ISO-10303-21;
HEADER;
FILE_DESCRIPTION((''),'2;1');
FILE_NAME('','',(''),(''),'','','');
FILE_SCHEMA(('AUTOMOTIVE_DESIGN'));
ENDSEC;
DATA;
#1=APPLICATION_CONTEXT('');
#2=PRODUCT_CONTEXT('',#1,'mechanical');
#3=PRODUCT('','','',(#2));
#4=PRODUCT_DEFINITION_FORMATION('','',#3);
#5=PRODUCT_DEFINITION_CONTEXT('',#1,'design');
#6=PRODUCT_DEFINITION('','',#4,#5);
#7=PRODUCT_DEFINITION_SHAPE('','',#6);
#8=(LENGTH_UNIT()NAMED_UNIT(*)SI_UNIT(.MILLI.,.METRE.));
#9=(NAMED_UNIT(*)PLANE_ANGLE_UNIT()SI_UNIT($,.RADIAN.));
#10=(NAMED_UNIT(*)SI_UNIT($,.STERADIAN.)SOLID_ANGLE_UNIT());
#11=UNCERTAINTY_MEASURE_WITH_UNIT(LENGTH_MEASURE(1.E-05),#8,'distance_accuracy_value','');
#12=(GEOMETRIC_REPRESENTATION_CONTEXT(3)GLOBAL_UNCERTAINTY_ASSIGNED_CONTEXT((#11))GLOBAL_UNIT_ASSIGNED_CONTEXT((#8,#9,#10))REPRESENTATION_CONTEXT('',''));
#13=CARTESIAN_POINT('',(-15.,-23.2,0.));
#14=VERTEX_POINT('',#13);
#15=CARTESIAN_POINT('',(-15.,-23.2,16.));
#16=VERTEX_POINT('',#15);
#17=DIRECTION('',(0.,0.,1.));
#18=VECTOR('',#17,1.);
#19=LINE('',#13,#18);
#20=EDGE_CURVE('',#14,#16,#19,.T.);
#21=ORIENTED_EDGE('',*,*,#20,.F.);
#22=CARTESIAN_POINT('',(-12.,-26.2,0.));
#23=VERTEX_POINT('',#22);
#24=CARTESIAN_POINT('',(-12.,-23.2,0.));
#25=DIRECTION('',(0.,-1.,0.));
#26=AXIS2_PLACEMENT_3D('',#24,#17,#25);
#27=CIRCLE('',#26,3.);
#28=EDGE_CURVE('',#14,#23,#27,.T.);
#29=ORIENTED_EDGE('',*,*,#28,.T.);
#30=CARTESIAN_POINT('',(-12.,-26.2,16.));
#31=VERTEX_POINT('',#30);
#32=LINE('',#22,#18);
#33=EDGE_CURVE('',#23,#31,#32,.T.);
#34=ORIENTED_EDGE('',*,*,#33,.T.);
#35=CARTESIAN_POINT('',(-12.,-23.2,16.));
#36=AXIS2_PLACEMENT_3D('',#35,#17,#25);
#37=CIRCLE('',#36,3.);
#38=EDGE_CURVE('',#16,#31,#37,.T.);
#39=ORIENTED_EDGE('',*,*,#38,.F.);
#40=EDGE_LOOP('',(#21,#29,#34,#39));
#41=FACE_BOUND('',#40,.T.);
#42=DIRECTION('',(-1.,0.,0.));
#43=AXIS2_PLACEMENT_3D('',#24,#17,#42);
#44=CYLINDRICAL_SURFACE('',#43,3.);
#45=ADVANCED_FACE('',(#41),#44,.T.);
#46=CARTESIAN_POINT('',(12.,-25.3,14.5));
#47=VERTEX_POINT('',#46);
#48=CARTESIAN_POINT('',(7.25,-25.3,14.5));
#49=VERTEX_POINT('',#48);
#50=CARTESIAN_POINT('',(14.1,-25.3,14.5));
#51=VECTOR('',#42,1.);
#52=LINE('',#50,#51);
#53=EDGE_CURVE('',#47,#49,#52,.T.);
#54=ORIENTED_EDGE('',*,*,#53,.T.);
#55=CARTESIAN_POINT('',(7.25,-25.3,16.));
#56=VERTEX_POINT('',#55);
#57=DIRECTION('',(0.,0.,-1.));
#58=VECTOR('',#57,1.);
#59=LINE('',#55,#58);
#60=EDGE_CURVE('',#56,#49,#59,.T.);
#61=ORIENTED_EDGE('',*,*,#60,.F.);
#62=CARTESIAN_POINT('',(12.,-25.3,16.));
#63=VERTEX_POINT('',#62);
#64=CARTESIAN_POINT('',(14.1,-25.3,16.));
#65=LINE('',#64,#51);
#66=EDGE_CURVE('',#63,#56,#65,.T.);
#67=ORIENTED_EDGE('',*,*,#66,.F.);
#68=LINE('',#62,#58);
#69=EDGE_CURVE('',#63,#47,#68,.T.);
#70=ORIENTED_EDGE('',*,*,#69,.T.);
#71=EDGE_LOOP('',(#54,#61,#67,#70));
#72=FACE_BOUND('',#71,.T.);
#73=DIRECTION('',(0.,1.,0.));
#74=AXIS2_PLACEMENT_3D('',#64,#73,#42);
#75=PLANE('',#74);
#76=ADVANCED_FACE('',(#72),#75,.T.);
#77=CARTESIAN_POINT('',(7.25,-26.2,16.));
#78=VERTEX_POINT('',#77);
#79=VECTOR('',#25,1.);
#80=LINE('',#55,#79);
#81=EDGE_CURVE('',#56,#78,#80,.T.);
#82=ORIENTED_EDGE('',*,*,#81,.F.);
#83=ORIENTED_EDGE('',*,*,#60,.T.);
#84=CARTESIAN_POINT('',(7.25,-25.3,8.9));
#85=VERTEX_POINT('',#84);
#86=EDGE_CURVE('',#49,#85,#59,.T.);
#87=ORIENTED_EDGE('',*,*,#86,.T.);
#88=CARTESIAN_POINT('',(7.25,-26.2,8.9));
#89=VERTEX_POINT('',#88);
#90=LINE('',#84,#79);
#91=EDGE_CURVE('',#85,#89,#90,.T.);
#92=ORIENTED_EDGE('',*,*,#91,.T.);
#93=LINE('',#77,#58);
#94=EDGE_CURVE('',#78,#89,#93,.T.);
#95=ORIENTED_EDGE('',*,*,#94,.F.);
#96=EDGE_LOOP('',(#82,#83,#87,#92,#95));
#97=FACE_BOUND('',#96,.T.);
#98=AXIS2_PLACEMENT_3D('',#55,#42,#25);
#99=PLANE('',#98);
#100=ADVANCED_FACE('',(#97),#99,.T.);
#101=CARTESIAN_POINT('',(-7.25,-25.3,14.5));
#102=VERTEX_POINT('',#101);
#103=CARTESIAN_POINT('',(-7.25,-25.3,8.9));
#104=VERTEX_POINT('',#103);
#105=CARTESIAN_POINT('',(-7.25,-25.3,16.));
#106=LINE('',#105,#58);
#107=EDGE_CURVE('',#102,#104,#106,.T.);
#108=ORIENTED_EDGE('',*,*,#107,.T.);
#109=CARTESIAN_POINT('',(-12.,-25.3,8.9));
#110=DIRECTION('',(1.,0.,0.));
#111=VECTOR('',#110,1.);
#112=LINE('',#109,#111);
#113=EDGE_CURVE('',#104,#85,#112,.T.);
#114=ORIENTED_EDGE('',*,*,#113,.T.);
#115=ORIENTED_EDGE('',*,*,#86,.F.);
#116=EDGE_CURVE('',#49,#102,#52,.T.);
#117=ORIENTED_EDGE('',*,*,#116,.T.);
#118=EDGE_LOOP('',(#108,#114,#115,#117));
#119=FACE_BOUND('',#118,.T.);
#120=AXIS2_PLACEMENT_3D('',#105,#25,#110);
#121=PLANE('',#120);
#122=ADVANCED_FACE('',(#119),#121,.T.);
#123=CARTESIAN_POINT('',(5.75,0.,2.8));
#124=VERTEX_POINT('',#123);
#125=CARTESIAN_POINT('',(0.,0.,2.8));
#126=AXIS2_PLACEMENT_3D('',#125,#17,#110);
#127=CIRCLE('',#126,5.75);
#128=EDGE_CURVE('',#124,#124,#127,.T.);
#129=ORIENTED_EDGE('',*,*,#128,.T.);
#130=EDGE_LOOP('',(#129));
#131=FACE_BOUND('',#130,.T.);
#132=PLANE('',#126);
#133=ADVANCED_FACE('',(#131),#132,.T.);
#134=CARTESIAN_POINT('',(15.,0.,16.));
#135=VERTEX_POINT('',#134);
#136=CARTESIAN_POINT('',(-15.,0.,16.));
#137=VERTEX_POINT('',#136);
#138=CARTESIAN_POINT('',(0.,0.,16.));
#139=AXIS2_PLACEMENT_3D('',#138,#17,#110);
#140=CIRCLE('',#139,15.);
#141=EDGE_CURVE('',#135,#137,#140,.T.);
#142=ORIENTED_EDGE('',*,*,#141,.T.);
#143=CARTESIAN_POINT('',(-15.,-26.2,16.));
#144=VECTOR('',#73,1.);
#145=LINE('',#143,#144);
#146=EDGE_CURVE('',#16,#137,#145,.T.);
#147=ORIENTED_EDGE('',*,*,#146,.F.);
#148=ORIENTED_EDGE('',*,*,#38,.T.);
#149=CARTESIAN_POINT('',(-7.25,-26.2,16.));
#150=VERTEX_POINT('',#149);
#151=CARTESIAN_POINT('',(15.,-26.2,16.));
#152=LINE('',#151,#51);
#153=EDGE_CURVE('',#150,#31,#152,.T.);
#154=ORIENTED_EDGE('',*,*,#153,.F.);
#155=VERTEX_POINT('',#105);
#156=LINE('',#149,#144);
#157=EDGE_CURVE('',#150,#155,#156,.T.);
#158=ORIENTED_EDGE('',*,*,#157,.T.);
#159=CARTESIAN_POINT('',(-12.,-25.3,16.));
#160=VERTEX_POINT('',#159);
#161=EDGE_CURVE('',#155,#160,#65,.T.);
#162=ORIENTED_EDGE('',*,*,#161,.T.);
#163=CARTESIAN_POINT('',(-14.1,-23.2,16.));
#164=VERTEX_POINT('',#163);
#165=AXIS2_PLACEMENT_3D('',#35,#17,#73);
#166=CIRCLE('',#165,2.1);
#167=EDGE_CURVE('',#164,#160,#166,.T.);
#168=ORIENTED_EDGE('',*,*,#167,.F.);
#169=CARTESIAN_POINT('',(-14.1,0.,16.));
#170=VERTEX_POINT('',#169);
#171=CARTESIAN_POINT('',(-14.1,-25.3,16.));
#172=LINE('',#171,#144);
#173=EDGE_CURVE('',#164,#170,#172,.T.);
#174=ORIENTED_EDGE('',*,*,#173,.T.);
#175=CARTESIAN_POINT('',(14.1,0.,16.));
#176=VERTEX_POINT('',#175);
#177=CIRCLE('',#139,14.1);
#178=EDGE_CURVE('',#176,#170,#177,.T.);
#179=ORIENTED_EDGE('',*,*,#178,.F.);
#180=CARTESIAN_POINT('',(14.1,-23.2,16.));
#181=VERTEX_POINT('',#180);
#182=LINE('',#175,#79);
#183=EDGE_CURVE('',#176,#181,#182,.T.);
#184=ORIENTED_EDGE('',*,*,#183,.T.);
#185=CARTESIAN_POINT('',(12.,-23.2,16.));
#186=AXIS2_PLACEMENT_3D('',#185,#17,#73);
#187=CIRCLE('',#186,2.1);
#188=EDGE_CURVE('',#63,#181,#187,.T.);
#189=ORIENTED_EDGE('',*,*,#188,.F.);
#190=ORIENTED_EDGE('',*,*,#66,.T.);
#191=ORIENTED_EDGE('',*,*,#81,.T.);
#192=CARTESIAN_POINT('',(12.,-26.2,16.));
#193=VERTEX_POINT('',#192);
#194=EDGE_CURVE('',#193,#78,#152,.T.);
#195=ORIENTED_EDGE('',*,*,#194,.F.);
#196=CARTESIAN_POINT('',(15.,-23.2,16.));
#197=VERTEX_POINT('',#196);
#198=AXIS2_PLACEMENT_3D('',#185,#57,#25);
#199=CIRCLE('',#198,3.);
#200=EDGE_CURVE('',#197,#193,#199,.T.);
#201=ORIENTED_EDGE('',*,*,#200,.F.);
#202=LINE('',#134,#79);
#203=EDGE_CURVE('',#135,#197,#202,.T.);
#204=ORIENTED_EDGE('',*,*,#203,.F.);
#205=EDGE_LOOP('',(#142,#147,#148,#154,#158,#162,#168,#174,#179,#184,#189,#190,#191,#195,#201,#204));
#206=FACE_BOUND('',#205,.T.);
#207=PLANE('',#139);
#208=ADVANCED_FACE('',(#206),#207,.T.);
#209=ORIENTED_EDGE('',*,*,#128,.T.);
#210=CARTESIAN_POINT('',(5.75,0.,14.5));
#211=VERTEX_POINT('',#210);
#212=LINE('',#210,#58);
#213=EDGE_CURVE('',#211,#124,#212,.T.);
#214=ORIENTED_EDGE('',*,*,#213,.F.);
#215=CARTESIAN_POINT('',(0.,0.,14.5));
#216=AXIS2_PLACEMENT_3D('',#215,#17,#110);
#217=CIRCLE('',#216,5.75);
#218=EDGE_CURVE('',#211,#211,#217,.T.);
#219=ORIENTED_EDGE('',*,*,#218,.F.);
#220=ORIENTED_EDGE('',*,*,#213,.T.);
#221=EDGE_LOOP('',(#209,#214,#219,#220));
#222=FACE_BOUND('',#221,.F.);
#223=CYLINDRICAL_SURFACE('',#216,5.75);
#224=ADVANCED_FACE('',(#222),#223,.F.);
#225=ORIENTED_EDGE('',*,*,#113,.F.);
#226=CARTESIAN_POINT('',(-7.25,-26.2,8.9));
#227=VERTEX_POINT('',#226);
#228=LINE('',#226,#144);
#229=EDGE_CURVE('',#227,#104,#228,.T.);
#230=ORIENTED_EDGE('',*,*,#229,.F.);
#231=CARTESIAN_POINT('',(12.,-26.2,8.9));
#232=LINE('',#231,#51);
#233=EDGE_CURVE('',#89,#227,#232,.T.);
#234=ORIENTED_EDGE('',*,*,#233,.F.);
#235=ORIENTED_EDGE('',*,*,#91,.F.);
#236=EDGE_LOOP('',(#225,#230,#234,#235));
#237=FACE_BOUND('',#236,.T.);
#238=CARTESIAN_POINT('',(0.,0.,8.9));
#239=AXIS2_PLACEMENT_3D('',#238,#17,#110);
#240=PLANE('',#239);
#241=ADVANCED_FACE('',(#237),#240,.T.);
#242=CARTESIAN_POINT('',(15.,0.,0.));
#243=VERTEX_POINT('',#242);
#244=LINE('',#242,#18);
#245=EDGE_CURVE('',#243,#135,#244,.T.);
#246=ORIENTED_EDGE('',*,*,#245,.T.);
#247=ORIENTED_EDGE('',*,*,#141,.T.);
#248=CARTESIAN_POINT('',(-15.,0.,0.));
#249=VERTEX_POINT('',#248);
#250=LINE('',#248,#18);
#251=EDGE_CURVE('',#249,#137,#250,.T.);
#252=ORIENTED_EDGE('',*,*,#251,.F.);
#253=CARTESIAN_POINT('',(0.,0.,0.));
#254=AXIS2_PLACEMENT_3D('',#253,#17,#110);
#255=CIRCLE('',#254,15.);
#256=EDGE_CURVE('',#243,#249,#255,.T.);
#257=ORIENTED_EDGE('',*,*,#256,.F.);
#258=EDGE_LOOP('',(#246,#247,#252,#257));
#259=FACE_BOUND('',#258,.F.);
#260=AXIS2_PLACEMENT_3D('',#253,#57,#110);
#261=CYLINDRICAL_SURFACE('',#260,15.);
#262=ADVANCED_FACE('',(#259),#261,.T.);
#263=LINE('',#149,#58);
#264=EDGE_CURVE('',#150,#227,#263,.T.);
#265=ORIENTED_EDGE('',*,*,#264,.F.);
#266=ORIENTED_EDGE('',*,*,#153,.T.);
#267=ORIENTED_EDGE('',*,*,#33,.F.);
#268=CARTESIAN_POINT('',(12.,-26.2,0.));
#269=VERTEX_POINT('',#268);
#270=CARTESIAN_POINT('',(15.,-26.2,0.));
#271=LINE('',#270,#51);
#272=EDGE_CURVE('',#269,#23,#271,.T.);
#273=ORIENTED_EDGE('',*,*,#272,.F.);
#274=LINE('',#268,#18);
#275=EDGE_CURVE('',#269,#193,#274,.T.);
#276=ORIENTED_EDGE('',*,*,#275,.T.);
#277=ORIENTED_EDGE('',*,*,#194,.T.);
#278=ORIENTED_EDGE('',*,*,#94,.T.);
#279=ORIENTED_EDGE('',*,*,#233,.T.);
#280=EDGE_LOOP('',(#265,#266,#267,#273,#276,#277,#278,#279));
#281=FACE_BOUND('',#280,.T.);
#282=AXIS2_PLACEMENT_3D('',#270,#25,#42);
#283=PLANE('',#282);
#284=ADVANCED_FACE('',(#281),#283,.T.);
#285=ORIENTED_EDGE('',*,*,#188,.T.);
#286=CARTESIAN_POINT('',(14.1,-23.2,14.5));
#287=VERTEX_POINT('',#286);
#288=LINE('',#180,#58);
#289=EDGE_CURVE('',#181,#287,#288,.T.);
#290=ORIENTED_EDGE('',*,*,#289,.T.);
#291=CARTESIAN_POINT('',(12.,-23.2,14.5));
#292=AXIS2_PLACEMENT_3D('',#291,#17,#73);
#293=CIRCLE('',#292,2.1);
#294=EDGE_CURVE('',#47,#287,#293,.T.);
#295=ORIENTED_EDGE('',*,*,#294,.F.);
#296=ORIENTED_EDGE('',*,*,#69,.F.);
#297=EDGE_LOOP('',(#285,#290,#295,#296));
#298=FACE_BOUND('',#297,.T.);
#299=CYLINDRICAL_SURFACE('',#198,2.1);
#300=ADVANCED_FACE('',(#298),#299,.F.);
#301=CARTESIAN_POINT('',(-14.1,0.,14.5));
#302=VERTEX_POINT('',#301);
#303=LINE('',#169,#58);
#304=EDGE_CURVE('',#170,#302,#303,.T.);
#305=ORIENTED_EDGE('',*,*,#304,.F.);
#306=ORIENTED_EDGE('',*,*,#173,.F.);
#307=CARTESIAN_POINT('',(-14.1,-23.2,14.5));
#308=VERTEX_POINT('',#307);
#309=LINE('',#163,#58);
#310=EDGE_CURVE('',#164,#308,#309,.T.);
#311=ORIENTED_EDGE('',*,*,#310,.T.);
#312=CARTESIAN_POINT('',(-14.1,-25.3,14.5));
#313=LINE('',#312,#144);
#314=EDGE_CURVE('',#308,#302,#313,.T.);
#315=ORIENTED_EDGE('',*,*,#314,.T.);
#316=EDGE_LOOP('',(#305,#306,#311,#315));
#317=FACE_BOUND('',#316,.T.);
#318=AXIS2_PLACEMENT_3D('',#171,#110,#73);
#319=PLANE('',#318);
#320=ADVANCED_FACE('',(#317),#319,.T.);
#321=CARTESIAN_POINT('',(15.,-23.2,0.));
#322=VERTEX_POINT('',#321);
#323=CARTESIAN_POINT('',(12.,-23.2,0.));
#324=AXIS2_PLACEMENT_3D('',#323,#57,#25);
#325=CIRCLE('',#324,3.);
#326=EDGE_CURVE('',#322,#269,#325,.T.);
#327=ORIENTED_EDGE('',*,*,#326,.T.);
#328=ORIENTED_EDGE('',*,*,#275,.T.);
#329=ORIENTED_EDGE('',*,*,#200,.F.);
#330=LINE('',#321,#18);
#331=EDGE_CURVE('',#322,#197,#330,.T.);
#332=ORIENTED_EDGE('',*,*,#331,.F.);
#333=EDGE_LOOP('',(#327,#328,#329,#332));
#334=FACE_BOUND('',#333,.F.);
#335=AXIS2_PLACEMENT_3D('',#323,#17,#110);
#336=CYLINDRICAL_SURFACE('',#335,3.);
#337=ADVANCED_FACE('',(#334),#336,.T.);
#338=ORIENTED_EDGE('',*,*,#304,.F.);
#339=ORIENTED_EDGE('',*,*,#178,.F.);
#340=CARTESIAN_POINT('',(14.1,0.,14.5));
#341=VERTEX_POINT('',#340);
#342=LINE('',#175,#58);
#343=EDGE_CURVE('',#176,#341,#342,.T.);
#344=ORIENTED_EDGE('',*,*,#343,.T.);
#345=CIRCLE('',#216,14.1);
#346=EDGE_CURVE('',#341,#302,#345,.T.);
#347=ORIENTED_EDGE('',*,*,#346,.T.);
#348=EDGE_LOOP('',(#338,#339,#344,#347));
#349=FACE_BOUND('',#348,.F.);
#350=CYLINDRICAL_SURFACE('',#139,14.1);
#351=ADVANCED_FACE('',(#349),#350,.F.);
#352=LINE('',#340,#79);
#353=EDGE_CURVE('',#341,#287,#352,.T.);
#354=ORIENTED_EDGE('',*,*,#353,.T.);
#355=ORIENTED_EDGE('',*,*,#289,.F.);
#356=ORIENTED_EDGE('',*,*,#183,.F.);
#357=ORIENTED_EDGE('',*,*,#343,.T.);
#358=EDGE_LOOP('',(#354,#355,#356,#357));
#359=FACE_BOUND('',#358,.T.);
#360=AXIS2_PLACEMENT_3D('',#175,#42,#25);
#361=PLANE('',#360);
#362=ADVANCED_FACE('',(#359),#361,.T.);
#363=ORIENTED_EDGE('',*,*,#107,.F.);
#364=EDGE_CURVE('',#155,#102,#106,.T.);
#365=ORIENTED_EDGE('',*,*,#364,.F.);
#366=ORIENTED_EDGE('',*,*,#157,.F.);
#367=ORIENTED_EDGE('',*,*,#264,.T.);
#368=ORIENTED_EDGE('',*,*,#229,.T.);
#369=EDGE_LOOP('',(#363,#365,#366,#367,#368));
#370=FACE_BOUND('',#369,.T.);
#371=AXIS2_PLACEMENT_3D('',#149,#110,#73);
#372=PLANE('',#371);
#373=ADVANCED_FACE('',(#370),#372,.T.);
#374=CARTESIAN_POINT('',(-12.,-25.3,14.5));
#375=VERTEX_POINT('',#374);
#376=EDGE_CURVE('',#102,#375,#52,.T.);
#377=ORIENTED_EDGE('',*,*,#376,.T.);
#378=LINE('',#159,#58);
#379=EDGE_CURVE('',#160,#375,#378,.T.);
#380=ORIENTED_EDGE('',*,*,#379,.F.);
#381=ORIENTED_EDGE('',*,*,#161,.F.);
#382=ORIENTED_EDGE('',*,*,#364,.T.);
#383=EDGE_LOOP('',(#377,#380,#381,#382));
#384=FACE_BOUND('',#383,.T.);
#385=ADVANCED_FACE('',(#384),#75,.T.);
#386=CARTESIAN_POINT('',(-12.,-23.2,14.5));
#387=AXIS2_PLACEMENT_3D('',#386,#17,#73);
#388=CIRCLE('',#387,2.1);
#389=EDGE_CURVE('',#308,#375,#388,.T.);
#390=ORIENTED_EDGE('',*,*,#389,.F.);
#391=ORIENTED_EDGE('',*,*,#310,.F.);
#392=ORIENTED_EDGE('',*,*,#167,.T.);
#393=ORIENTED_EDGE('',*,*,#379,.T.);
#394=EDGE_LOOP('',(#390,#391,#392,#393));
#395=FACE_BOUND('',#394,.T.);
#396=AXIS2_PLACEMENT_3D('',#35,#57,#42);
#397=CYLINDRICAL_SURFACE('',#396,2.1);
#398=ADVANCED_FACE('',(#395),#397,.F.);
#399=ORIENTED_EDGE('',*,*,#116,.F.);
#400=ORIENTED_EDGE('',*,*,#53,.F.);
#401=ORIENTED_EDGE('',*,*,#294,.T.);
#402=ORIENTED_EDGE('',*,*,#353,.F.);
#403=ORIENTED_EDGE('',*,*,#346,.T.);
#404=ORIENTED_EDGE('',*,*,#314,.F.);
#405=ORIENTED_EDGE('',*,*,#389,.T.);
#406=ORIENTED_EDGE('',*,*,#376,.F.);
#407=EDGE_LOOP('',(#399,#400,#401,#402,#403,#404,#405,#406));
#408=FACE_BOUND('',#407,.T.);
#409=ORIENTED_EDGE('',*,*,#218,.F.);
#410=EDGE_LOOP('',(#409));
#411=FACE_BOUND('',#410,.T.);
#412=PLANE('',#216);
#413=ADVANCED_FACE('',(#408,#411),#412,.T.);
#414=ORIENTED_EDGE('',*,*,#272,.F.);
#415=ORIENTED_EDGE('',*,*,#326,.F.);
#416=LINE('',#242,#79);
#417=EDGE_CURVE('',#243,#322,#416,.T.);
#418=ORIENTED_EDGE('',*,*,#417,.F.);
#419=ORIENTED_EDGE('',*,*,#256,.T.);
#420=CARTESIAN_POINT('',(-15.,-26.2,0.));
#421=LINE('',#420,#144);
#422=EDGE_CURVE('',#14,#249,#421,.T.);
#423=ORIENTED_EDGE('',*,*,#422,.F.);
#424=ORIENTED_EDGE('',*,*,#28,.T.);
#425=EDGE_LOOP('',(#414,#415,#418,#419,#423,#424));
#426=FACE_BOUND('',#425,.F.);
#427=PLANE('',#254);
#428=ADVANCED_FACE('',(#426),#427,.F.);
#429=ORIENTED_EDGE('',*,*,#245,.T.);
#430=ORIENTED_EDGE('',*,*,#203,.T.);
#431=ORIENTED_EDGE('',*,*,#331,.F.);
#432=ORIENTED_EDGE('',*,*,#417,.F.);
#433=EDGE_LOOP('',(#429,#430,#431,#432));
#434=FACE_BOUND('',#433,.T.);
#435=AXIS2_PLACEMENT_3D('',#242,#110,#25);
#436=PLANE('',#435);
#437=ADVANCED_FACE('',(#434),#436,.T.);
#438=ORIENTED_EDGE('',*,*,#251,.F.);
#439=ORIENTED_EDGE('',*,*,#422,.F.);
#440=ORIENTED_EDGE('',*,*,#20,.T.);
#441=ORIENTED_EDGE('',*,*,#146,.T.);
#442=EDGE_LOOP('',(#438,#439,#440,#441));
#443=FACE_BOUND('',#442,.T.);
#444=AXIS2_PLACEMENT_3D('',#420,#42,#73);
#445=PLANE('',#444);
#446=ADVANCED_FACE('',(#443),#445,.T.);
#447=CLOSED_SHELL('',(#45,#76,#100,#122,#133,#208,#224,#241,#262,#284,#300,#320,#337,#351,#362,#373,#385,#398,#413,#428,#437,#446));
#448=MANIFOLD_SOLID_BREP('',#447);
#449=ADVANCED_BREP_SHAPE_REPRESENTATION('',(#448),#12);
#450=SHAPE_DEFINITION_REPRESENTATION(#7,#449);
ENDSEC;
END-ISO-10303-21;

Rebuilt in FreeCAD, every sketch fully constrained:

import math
import FreeCAD as App
import Part
import Sketcher

V = App.Vector


def edges_at(feature, points):
    """Names of the edges that pass closest to the given points."""
    edges = feature.Shape.Edges
    near = lambda p: min(range(len(edges)), key=lambda i: edges[i].distToShape(Part.Vertex(*p))[0])
    return sorted({f"Edge{near(p) + 1}" for p in points})

doc = App.newDocument("Part")
body = doc.addObject("PartDesign::Body", "Body")

# Sketch on XY plane
sketch1 = body.newObject("Sketcher::SketchObject", "Sketch")
sketch1.AttachmentSupport = (doc.getObject("XY_Plane"), [""])
sketch1.MapMode = "FlatFace"
sketch1.addGeometry(Part.ArcOfCircle(Part.Circle(V(0, 0, 0), V(0, 0, 1), 15), math.radians(0), math.radians(180)), False)
sketch1.addGeometry(Part.LineSegment(V(-15, 0, 0), V(-15, -26, 0)), False)
sketch1.addGeometry(Part.LineSegment(V(-15, -26, 0), V(15, -26, 0)), False)
sketch1.addGeometry(Part.LineSegment(V(15, -26, 0), V(15, 0, 0)), False)
sketch1.addConstraint(Sketcher.Constraint("Tangent", 0, 2, 1, 1))
sketch1.addConstraint(Sketcher.Constraint("Coincident", 1, 2, 2, 1))
sketch1.addConstraint(Sketcher.Constraint("Coincident", 2, 2, 3, 1))
sketch1.addConstraint(Sketcher.Constraint("Tangent", 3, 2, 0, 1))
sketch1.addConstraint(Sketcher.Constraint("Vertical", 1))
sketch1.addConstraint(Sketcher.Constraint("Horizontal", 2))
sketch1.addConstraint(Sketcher.Constraint("Vertical", 3))
sketch1.addConstraint(Sketcher.Constraint("Coincident", 0, 3, -1, 1))
sketch1.addConstraint(Sketcher.Constraint("Radius", 0, 15.0))
sketch1.addConstraint(Sketcher.Constraint("DistanceY", 1, 2, 1, 1, 26.2))
pad1 = body.newObject("PartDesign::Pad", "Pad")
pad1.Profile = sketch1
pad1.Length = 16

# Sketch on XY plane
sketch2 = body.newObject("Sketcher::SketchObject", "Sketch001")
sketch2.AttachmentSupport = (doc.getObject("XY_Plane"), [""])
sketch2.MapMode = "FlatFace"
sketch2.AttachmentOffset = App.Placement(V(0, 0, 16), App.Rotation())
sketch2.addGeometry(Part.ArcOfCircle(Part.Circle(V(0, 0, 0), V(0, 0, 1), 14), math.radians(0), math.radians(180)), False)
sketch2.addGeometry(Part.LineSegment(V(-14, 0, 0), V(-14, -25, 0)), False)
sketch2.addGeometry(Part.LineSegment(V(-14, -25, 0), V(14, -25, 0)), False)
sketch2.addGeometry(Part.LineSegment(V(14, -25, 0), V(14, 0, 0)), False)
sketch2.addConstraint(Sketcher.Constraint("Tangent", 0, 2, 1, 1))
sketch2.addConstraint(Sketcher.Constraint("Coincident", 1, 2, 2, 1))
sketch2.addConstraint(Sketcher.Constraint("Coincident", 2, 2, 3, 1))
sketch2.addConstraint(Sketcher.Constraint("Tangent", 3, 2, 0, 1))
sketch2.addConstraint(Sketcher.Constraint("Vertical", 1))
sketch2.addConstraint(Sketcher.Constraint("Horizontal", 2))
sketch2.addConstraint(Sketcher.Constraint("Vertical", 3))
sketch2.addConstraint(Sketcher.Constraint("Coincident", 0, 3, -1, 1))
sketch2.addConstraint(Sketcher.Constraint("Radius", 0, 14.1))
sketch2.addConstraint(Sketcher.Constraint("DistanceY", 1, 2, 1, 1, 25.3))
pocket1 = body.newObject("PartDesign::Pocket", "Pocket")
pocket1.Profile = sketch2
pocket1.Length = 1.5

# Sketch on XY plane
sketch3 = body.newObject("Sketcher::SketchObject", "Sketch002")
sketch3.AttachmentSupport = (doc.getObject("XY_Plane"), [""])
sketch3.MapMode = "FlatFace"
sketch3.AttachmentOffset = App.Placement(V(0, 0, 14.5), App.Rotation())
sketch3.addGeometry(Part.Circle(V(0, 0, 0), V(0, 0, 1), 6), False)
sketch3.addConstraint(Sketcher.Constraint("Coincident", 0, 3, -1, 1))
sketch3.addConstraint(Sketcher.Constraint("Diameter", 0, 11.5))
pocket2 = body.newObject("PartDesign::Pocket", "Pocket001")
pocket2.Profile = sketch3
pocket2.Length = 11.7
doc.recompute()

fillet = body.newObject("PartDesign::Fillet", "Fillet")
fillet.Base = (pocket2, edges_at(pocket2, [(15, -26.2, 8), (-15, -26.2, 8)]))
fillet.Radius = 3
doc.recompute()

fillet2 = body.newObject("PartDesign::Fillet", "Fillet001")
fillet2.Base = (fillet, edges_at(fillet, [(-14.1, -25.3, 15.25), (14.1, -25.3, 15.25)]))
fillet2.Radius = 2.1

# Sketch on XY plane
sketch4 = body.newObject("Sketcher::SketchObject", "Sketch003")
sketch4.AttachmentSupport = (doc.getObject("XY_Plane"), [""])
sketch4.MapMode = "FlatFace"
sketch4.AttachmentOffset = App.Placement(V(0, 0, 16), App.Rotation())
sketch4.addGeometry(Part.LineSegment(V(-7.2, -26.2, 0), V(7.2, -26.2, 0)), False)
sketch4.addGeometry(Part.LineSegment(V(7.2, -26.2, 0), V(7.2, -25.3, 0)), False)
sketch4.addGeometry(Part.LineSegment(V(7.2, -25.3, 0), V(-7.2, -25.3, 0)), False)
sketch4.addGeometry(Part.LineSegment(V(-7.2, -25.3, 0), V(-7.2, -26.2, 0)), False)
sketch4.addConstraint(Sketcher.Constraint("Coincident", 0, 2, 1, 1))
sketch4.addConstraint(Sketcher.Constraint("Coincident", 1, 2, 2, 1))
sketch4.addConstraint(Sketcher.Constraint("Coincident", 2, 2, 3, 1))
sketch4.addConstraint(Sketcher.Constraint("Coincident", 3, 2, 0, 1))
sketch4.addConstraint(Sketcher.Constraint("Horizontal", 0))
sketch4.addConstraint(Sketcher.Constraint("Vertical", 1))
sketch4.addConstraint(Sketcher.Constraint("Horizontal", 2))
sketch4.addConstraint(Sketcher.Constraint("Vertical", 3))
sketch4.addConstraint(Sketcher.Constraint("DistanceX", 0, 1, 0, 2, 14.5))
sketch4.addConstraint(Sketcher.Constraint("DistanceX", -1, 1, 0, 2, 7.25))
sketch4.addConstraint(Sketcher.Constraint("DistanceY", 1, 1, 1, 2, 0.9))
sketch4.addConstraint(Sketcher.Constraint("DistanceY", 0, 2, -1, 1, 26.2))
pocket3 = body.newObject("PartDesign::Pocket", "Pocket002")
pocket3.Profile = sketch4
pocket3.Length = 7.1

doc.recompute()
